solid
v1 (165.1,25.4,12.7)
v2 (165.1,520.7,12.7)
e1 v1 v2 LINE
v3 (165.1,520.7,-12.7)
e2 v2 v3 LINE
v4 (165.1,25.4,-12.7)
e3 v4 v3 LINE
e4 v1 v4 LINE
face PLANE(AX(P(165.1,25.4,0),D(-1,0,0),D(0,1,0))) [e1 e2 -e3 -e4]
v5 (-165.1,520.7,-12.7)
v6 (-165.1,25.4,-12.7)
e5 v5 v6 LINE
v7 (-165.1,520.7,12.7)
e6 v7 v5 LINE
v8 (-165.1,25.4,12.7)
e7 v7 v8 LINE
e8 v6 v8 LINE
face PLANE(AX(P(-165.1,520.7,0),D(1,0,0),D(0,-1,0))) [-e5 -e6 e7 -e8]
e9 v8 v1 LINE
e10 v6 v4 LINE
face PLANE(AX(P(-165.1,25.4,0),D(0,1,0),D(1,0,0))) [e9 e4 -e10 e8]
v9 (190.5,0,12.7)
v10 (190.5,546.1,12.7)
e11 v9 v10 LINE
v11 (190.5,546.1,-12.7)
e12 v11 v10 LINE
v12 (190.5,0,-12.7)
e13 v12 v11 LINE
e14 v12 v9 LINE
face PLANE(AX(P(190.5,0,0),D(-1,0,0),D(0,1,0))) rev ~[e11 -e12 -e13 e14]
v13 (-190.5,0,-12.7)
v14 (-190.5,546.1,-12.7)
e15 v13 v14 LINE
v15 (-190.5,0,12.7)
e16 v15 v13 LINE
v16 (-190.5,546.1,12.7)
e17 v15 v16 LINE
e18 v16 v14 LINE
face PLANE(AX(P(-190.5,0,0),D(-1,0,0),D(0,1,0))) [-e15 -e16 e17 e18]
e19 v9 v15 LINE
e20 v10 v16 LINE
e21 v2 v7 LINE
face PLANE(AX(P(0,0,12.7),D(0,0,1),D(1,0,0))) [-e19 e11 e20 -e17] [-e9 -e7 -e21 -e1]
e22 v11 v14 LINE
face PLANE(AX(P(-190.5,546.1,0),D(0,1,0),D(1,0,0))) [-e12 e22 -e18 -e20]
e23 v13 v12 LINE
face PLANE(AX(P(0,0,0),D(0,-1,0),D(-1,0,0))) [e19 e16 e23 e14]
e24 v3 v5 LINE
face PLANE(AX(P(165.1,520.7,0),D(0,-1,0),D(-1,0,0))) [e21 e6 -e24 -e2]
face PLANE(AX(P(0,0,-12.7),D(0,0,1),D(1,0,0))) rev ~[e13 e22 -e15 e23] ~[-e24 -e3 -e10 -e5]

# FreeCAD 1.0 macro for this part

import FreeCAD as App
import Part
import Sketcher
Q = App.Units.Quantity


def add_polygon(sketch, points):
    """Adds a closed chain of lines whose ends are joined by coincident constraints."""
    first, n = sketch.GeometryCount, len(points)
    for a, b in zip(points, points[1:] + points[:1]):
        sketch.addGeometry(Part.LineSegment(App.Vector(*a, 0), App.Vector(*b, 0)), False)
    for i in range(n):
        sketch.addConstraint(Sketcher.Constraint("Coincident", first + i, 2, first + (i + 1) % n, 1))

doc = App.newDocument("Part")
params = doc.addObject("Spreadsheet::Sheet", "Params")
for row, (alias, value) in enumerate([
    ("sketch1_width", "15 in"),
    ("sketch1_height", "21.5 in"),
    ("pad1_length", "1 in"),
], start=1):
    params.set(f"A{row}", alias)
    params.set(f"B{row}", "=" + value)
    params.setAlias(f"B{row}", alias)

body = doc.addObject("PartDesign::Body", "Body")

sketch1 = body.newObject("Sketcher::SketchObject", "Sketch")
sketch1.AttachmentSupport = (doc.getObject("XY_Plane"), [""])
sketch1.MapMode = "FlatFace"
add_polygon(sketch1, [(-190, 0), (190, 0), (190, 546), (-190, 546)])
add_polygon(sketch1, [(165, 25), (-165, 25), (-165, 521), (165, 521)])
sketch1.addConstraint([
    Sketcher.Constraint("Horizontal", 0),
    Sketcher.Constraint("Vertical", 1),
    Sketcher.Constraint("Horizontal", 2),
    Sketcher.Constraint("Vertical", 3),
    Sketcher.Constraint("Horizontal", 4),
    Sketcher.Constraint("Vertical", 5),
    Sketcher.Constraint("Horizontal", 6),
    Sketcher.Constraint("Vertical", 7),
    Sketcher.Constraint("Symmetric", 0, 2, 3, 2, -1, 1),
    Sketcher.Constraint("DistanceX", 0, 1, 0, 2, Q("15 in")),
    Sketcher.Constraint("DistanceY", 1, 1, 1, 2, Q("21.5 in")),
    Sketcher.Constraint("DistanceY", -1, 1, 4, 2, Q("1 in")),
    Sketcher.Constraint("DistanceX", 3, 2, 4, 2, Q("1 in")),
    Sketcher.Constraint("DistanceY", 5, 2, 2, 2, Q("1 in")),
    Sketcher.Constraint("DistanceX", 6, 2, 1, 2, Q("1 in")),
])
sketch1.setExpression("Constraints[17]", "Params.sketch1_width")
sketch1.setExpression("Constraints[18]", "Params.sketch1_height")
pad1 = body.newObject("PartDesign::Pad", "Pad")
pad1.Profile = sketch1
pad1.setExpression("Length", "Params.pad1_length")
pad1.Midplane = True

doc.recompute()
